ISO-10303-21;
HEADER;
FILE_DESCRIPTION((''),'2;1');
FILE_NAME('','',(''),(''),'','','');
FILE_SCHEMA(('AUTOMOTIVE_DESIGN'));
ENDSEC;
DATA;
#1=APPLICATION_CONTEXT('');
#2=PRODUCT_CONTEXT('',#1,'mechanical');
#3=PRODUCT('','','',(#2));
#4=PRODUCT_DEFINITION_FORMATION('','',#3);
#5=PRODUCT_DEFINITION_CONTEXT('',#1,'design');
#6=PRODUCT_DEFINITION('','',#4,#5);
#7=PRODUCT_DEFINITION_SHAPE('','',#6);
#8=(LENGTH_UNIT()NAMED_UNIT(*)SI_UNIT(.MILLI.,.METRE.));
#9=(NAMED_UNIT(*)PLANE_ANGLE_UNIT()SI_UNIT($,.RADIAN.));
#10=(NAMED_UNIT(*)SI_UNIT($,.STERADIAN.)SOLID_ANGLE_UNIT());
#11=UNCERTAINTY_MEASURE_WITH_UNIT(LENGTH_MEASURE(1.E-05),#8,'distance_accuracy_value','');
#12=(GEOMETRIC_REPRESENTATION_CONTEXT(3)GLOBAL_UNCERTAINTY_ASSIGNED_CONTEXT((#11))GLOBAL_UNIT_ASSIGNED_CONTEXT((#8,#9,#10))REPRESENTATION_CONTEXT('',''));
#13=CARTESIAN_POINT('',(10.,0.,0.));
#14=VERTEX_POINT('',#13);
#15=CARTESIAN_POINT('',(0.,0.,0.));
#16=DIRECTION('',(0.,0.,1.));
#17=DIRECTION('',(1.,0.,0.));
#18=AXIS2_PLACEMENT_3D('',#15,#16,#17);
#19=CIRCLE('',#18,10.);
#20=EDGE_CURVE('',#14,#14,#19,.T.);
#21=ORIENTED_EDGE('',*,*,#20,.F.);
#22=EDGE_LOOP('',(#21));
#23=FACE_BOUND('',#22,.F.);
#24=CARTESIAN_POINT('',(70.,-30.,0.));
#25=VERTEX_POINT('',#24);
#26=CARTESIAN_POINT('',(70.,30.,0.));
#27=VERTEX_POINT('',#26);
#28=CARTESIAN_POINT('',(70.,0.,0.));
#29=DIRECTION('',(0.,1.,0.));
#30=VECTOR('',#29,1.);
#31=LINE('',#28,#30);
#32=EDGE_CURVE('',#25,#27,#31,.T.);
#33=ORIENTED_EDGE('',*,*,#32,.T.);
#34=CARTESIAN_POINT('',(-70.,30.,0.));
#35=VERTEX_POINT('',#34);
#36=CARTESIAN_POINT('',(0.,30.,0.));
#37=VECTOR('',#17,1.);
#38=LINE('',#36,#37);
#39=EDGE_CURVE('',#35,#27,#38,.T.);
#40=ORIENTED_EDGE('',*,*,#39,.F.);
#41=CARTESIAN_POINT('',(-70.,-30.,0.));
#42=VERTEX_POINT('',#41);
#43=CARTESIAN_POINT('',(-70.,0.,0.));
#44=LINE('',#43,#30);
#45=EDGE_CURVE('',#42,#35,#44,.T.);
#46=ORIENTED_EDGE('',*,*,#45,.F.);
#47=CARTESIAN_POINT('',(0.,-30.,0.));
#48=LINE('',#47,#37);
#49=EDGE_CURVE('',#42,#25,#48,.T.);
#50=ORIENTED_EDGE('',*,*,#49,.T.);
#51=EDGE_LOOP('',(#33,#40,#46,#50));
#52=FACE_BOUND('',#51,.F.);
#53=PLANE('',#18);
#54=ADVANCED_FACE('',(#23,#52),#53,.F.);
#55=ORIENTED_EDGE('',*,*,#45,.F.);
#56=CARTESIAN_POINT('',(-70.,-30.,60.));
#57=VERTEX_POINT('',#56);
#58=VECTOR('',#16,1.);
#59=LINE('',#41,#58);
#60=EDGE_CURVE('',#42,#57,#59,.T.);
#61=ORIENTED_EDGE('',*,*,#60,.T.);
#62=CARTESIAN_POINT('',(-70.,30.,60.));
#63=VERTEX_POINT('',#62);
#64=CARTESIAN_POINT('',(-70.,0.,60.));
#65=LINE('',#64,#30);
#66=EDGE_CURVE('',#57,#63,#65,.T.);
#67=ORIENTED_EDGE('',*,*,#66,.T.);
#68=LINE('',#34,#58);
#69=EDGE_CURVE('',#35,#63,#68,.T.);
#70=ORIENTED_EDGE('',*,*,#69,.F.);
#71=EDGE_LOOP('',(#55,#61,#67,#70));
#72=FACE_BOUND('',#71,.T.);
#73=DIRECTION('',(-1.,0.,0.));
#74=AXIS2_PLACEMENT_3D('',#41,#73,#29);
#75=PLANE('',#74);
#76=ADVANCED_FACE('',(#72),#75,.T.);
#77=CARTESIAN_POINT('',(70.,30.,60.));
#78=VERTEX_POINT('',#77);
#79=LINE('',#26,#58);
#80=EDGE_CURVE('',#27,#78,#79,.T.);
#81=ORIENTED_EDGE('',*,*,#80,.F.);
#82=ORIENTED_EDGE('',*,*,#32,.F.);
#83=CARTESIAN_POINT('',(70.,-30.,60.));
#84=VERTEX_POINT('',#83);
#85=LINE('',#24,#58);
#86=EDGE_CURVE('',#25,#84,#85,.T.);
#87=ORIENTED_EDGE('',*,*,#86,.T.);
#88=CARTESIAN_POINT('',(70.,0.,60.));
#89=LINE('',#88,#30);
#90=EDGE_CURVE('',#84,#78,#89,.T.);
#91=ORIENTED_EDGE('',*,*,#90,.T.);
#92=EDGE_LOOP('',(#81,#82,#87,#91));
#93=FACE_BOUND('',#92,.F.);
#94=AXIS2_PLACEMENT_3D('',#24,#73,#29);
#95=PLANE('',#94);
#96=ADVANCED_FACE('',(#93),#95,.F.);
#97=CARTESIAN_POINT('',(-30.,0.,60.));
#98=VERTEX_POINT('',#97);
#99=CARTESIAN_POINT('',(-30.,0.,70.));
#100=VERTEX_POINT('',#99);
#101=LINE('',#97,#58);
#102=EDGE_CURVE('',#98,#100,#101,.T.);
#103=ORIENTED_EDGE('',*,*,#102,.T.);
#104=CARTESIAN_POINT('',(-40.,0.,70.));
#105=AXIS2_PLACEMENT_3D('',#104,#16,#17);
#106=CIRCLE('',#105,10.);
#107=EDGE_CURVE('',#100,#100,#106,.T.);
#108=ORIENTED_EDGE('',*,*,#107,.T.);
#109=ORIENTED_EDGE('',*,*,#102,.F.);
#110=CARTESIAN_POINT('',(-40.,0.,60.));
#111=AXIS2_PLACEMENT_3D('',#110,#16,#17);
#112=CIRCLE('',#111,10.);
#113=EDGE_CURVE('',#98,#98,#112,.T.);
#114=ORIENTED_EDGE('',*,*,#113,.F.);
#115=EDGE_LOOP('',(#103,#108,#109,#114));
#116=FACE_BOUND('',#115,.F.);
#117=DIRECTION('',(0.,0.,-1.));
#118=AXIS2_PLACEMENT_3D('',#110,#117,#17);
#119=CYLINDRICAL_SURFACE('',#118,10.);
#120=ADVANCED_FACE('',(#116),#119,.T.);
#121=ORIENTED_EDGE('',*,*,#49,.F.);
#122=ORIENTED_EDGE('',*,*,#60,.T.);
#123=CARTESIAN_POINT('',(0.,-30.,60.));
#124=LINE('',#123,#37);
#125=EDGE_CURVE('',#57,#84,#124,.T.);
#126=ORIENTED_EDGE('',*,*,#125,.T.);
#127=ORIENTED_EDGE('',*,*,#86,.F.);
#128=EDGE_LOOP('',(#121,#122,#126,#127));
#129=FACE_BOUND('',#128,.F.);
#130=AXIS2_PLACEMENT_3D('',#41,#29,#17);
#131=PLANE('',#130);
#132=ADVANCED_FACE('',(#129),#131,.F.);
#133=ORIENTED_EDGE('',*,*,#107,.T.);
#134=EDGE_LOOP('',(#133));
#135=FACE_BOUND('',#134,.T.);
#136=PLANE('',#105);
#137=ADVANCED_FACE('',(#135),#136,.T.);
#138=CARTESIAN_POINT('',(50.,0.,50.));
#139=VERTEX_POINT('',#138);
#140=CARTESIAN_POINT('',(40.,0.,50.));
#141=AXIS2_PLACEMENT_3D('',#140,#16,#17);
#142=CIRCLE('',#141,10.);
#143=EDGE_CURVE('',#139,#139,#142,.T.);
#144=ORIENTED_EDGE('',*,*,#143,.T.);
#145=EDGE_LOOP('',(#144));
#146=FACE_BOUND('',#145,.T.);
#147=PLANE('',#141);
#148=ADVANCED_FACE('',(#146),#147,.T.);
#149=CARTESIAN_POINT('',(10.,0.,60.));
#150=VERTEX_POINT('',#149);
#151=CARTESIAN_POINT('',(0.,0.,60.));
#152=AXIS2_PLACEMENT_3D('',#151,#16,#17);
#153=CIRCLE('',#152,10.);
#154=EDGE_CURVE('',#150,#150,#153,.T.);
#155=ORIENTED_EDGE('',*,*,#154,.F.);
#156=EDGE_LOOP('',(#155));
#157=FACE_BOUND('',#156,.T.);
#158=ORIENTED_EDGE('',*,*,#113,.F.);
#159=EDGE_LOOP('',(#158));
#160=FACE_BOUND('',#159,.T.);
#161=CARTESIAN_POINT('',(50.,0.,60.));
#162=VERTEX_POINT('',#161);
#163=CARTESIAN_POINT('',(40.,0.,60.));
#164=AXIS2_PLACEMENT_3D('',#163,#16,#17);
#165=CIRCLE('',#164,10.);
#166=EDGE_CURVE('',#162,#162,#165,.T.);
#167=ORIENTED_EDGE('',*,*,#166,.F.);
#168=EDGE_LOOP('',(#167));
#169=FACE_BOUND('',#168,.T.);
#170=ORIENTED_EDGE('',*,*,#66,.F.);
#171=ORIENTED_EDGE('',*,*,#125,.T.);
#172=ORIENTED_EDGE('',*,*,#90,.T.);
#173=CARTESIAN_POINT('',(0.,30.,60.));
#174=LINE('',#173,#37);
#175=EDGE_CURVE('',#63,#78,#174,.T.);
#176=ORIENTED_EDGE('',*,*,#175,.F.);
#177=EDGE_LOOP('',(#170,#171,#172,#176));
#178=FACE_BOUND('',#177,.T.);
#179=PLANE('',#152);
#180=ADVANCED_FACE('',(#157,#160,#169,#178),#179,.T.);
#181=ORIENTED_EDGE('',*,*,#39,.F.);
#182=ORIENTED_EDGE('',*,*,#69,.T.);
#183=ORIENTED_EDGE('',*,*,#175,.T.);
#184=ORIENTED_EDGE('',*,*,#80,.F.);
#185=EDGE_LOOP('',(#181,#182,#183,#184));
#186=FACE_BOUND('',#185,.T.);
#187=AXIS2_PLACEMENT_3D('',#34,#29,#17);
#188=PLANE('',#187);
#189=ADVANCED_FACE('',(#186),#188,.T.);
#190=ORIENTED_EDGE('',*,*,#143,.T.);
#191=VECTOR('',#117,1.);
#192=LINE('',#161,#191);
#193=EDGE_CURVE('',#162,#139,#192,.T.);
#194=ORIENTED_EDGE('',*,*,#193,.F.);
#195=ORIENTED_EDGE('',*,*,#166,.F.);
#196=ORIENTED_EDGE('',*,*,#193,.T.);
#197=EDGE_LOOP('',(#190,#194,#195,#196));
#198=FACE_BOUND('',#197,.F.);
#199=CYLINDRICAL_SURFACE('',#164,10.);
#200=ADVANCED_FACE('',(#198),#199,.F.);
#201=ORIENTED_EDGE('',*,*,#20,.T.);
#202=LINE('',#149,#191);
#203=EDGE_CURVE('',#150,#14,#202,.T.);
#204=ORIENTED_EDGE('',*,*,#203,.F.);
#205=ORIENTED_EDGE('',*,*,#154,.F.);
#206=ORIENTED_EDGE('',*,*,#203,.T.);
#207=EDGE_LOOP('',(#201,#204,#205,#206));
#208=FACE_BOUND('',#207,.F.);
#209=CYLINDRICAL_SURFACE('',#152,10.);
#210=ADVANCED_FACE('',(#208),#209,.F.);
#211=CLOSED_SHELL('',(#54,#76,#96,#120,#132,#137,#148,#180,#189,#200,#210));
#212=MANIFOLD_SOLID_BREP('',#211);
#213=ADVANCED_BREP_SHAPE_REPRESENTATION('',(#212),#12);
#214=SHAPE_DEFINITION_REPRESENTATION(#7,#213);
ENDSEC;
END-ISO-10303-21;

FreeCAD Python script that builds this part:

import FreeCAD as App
import Part
import Sketcher

V = App.Vector

doc = App.newDocument("Part")
body = doc.addObject("PartDesign::Body", "Body")

sketch1 = doc.addObject("Sketcher::SketchObject", "Sketch")
body.addObject(sketch1)
sketch1.AttachmentSupport = (doc.XY_Plane, [""])
sketch1.MapMode = "FlatFace"
sketch1.addGeometry(Part.LineSegment(V(-70, 30, 0), V(-70, -30, 0)), False)
sketch1.addGeometry(Part.LineSegment(V(-70, -30, 0), V(70, -30, 0)), False)
sketch1.addGeometry(Part.LineSegment(V(70, -30, 0), V(70, 30, 0)), False)
sketch1.addGeometry(Part.LineSegment(V(70, 30, 0), V(-70, 30, 0)), False)
sketch1.addConstraint(Sketcher.Constraint("Coincident", 0, 2, 1, 1))
sketch1.addConstraint(Sketcher.Constraint("Coincident", 1, 2, 2, 1))
sketch1.addConstraint(Sketcher.Constraint("Coincident", 2, 2, 3, 1))
sketch1.addConstraint(Sketcher.Constraint("Coincident", 3, 2, 0, 1))
sketch1.addConstraint(Sketcher.Constraint("Vertical", 0))
sketch1.addConstraint(Sketcher.Constraint("Horizontal", 1))
sketch1.addConstraint(Sketcher.Constraint("Vertical", 2))
sketch1.addConstraint(Sketcher.Constraint("Horizontal", 3))
sketch1.addConstraint(Sketcher.Constraint("Symmetric", 0, 2, 2, 2, -1, 1))
sketch1.addConstraint(Sketcher.Constraint("DistanceX", 1, 1, 1, 2, 140.0))
sketch1.addConstraint(Sketcher.Constraint("DistanceY", 0, 2, 0, 1, 60.0))
pad1 = doc.addObject("PartDesign::Pad", "Pad")
body.addObject(pad1)
pad1.Profile = sketch1
pad1.Length = 60

sketch2 = doc.addObject("Sketcher::SketchObject", "Sketch001")
body.addObject(sketch2)
sketch2.AttachmentSupport = (doc.XY_Plane, [""])
sketch2.MapMode = "FlatFace"
sketch2.AttachmentOffset = App.Placement(V(0, 0, 60), App.Rotation())
sketch2.addGeometry(Part.Circle(V(-40, 0, 0), V(0, 0, 1), 10), False)
sketch2.addConstraint(Sketcher.Constraint("PointOnObject", 0, 3, -1))
sketch2.addConstraint(Sketcher.Constraint("Diameter", 0, 20.0))
sketch2.addConstraint(Sketcher.Constraint("DistanceX", 0, 3, -1, 1, 40.0))
pad2 = doc.addObject("PartDesign::Pad", "Pad001")
body.addObject(pad2)
pad2.Profile = sketch2
pad2.Length = 10

sketch3 = doc.addObject("Sketcher::SketchObject", "Sketch002")
body.addObject(sketch3)
sketch3.AttachmentSupport = (doc.XY_Plane, [""])
sketch3.MapMode = "FlatFace"
sketch3.AttachmentOffset = App.Placement(V(0, 0, 60), App.Rotation())
sketch3.addGeometry(Part.Circle(V(0, 0, 0), V(0, 0, 1), 10), False)
sketch3.addConstraint(Sketcher.Constraint("Coincident", 0, 3, -1, 1))
sketch3.addConstraint(Sketcher.Constraint("Diameter", 0, 20.0))
pocket1 = doc.addObject("PartDesign::Pocket", "Pocket")
body.addObject(pocket1)
pocket1.Profile = sketch3
pocket1.Length = 95.9

sketch4 = doc.addObject("Sketcher::SketchObject", "Sketch003")
body.addObject(sketch4)
sketch4.AttachmentSupport = (doc.XY_Plane, [""])
sketch4.MapMode = "FlatFace"
sketch4.AttachmentOffset = App.Placement(V(0, 0, 60), App.Rotation())
sketch4.addGeometry(Part.Circle(V(40, 0, 0), V(0, 0, 1), 10), False)
sketch4.addConstraint(Sketcher.Constraint("PointOnObject", 0, 3, -1))
sketch4.addConstraint(Sketcher.Constraint("Diameter", 0, 20.0))
sketch4.addConstraint(Sketcher.Constraint("DistanceX", -1, 1, 0, 3, 40.0))
pocket2 = doc.addObject("PartDesign::Pocket", "Pocket001")
body.addObject(pocket2)
pocket2.Profile = sketch4
pocket2.Length = 10

doc.recompute()
